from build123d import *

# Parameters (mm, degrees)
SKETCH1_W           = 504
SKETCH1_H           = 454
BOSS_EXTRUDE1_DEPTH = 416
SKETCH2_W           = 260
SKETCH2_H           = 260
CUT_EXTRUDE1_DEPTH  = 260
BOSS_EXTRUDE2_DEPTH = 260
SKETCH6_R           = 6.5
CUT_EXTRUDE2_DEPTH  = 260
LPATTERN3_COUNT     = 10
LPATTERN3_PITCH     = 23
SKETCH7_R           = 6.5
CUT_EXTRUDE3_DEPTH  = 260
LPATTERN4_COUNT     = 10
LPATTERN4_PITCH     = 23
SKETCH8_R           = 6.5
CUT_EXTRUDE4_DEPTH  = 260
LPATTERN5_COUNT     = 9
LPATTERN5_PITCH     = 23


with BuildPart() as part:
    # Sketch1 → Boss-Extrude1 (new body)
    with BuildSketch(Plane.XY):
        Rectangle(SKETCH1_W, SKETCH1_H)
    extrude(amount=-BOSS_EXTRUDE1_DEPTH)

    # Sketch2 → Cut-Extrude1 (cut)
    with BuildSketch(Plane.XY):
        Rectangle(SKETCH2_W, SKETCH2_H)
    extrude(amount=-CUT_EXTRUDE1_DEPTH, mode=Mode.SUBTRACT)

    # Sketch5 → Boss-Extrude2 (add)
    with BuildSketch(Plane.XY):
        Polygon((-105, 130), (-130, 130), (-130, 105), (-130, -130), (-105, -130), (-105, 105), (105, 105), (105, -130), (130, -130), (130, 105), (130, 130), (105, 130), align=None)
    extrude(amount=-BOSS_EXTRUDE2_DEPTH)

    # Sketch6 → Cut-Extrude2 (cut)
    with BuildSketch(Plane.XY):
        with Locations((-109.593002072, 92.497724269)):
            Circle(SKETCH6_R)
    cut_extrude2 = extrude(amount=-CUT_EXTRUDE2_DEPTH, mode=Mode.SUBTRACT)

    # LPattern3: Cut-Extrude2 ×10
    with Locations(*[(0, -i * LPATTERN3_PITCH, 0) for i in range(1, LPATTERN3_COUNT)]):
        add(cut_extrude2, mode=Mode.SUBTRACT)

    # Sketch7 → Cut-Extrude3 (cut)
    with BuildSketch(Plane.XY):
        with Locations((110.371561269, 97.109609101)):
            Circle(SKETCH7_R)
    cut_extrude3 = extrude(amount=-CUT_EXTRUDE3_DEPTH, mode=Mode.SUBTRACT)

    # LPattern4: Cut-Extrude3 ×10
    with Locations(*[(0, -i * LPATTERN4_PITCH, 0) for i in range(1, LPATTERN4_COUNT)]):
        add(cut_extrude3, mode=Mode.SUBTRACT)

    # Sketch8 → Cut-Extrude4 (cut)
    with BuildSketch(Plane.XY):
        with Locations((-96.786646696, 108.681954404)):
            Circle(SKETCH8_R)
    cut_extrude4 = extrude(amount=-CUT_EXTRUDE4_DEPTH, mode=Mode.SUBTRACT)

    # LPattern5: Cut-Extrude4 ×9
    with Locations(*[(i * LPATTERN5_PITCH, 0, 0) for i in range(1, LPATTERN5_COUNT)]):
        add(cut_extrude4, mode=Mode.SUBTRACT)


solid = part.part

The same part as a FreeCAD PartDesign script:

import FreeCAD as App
import Part
import Sketcher
from FreeCAD import Vector
Q = App.Units.Quantity


def add_polygon(sketch, points):
    """Adds a closed chain of lines whose ends are joined by coincident constraints."""
    first, n = sketch.GeometryCount, len(points)
    for a, b in zip(points, points[1:] + points[:1]):
        sketch.addGeometry(Part.LineSegment(App.Vector(*a, 0), App.Vector(*b, 0)), False)
    for i in range(n):
        sketch.addConstraint(Sketcher.Constraint("Coincident", first + i, 2, first + (i + 1) % n, 1))

doc = App.newDocument("Part")
body = doc.addObject("PartDesign::Body", "Body")

sketch1 = body.newObject("Sketcher::SketchObject", "Sketch")
sketch1.AttachmentSupport = (doc.getObject("XY_Plane"), [""])
sketch1.MapMode = "FlatFace"
add_polygon(sketch1, [(-252, 227), (-252, -227), (252, -227), (252, 227)])
sketch1.addConstraint([
    Sketcher.Constraint("Vertical", 0),
    Sketcher.Constraint("Horizontal", 1),
    Sketcher.Constraint("Vertical", 2),
    Sketcher.Constraint("Horizontal", 3),
    Sketcher.Constraint("Symmetric", 0, 2, 2, 2, -1, 1),
    Sketcher.Constraint("DistanceX", 1, 1, 1, 2, Q("504 mm")),
    Sketcher.Constraint("DistanceY", 0, 2, 0, 1, Q("454 mm")),
])
pad1 = body.newObject("PartDesign::Pad", "Pad")
pad1.Profile = sketch1
pad1.Length = 416
pad1.Reversed = True

sketch2 = body.newObject("Sketcher::SketchObject", "Sketch001")
sketch2.AttachmentSupport = (doc.getObject("XY_Plane"), [""])
sketch2.MapMode = "FlatFace"
add_polygon(sketch2, [(-130, 130), (-130, -130), (130, -130), (130, 130)])
sketch2.addConstraint([
    Sketcher.Constraint("Vertical", 0),
    Sketcher.Constraint("Horizontal", 1),
    Sketcher.Constraint("Vertical", 2),
    Sketcher.Constraint("Horizontal", 3),
    Sketcher.Constraint("Symmetric", 0, 2, 2, 2, -1, 1),
    Sketcher.Constraint("Equal", 3, 0),
    Sketcher.Constraint("DistanceX", 1, 1, 1, 2, Q("260 mm")),
])
pocket1 = body.newObject("PartDesign::Pocket", "Pocket")
pocket1.Profile = sketch2
pocket1.Length = 260

sketch3 = body.newObject("Sketcher::SketchObject", "Sketch002")
sketch3.AttachmentSupport = (doc.getObject("XY_Plane"), [""])
sketch3.MapMode = "FlatFace"
add_polygon(sketch3, [(-130, 130), (-130, -130), (-105, -130), (-105, 105), (105, 105), (105, -130), (130, -130), (130, 130)])
sketch3.addConstraint([
    Sketcher.Constraint("Vertical", 0),
    Sketcher.Constraint("Horizontal", 1),
    Sketcher.Constraint("Vertical", 2),
    Sketcher.Constraint("Horizontal", 3),
    Sketcher.Constraint("Vertical", 4),
    Sketcher.Constraint("Horizontal", 5),
    Sketcher.Constraint("Vertical", 6),
    Sketcher.Constraint("Horizontal", 7),
    Sketcher.Constraint("Symmetric", 0, 2, 6, 2, -1, 1),
    Sketcher.Constraint("Symmetric", 1, 2, 4, 2, -2),
    Sketcher.Constraint("Equal", 7, 0),
    Sketcher.Constraint("DistanceX", 1, 1, 1, 2, Q("25 mm")),
    Sketcher.Constraint("DistanceX", 3, 1, 3, 2, Q("210 mm")),
    Sketcher.Constraint("DistanceY", 2, 1, 2, 2, Q("235 mm")),
])
pad2 = body.newObject("PartDesign::Pad", "Pad001")
pad2.Profile = sketch3
pad2.Length = 260
pad2.Reversed = True

sketch4 = body.newObject("Sketcher::SketchObject", "Sketch003")
sketch4.AttachmentSupport = (doc.getObject("XY_Plane"), [""])
sketch4.MapMode = "FlatFace"
sketch4.addGeometry(Part.Circle(Vector(-110, 92, 0), Vector(0, 0, 1), 6), False)
sketch4.addConstraint([
    Sketcher.Constraint("Diameter", 0, Q("13 mm")),
    Sketcher.Constraint("DistanceX", 0, 3, -1, 1, Q("109.593002 mm")),
    Sketcher.Constraint("DistanceY", -1, 1, 0, 3, Q("92.497724 mm")),
])
pocket2 = body.newObject("PartDesign::Pocket", "Pocket001")
pocket2.Profile = sketch4
pocket2.Length = 260
doc.recompute()

linearpattern = body.newObject("PartDesign::LinearPattern", "LinearPattern")
linearpattern.Originals = [pocket2]
linearpattern.Direction = (doc.getObject("Y_Axis"), [""])
linearpattern.Mode = "offset"
linearpattern.Offset = 23
linearpattern.Occurrences = 10
linearpattern.Reversed = True
body.Tip = linearpattern

sketch5 = body.newObject("Sketcher::SketchObject", "Sketch004")
sketch5.AttachmentSupport = (doc.getObject("XY_Plane"), [""])
sketch5.MapMode = "FlatFace"
sketch5.addGeometry(Part.Circle(Vector(110, 97, 0), Vector(0, 0, 1), 6), False)
sketch5.addConstraint([
    Sketcher.Constraint("Diameter", 0, Q("13 mm")),
    Sketcher.Constraint("DistanceX", -1, 1, 0, 3, Q("110.371561 mm")),
    Sketcher.Constraint("DistanceY", -1, 1, 0, 3, Q("97.109609 mm")),
])
pocket3 = body.newObject("PartDesign::Pocket", "Pocket002")
pocket3.Profile = sketch5
pocket3.Length = 260
doc.recompute()

linearpattern2 = body.newObject("PartDesign::LinearPattern", "LinearPattern001")
linearpattern2.Originals = [pocket3]
linearpattern2.Direction = (doc.getObject("Y_Axis"), [""])
linearpattern2.Mode = "offset"
linearpattern2.Offset = 23
linearpattern2.Occurrences = 10
linearpattern2.Reversed = True
body.Tip = linearpattern2

sketch6 = body.newObject("Sketcher::SketchObject", "Sketch005")
sketch6.AttachmentSupport = (doc.getObject("XY_Plane"), [""])
sketch6.MapMode = "FlatFace"
sketch6.addGeometry(Part.Circle(Vector(-97, 109, 0), Vector(0, 0, 1), 6), False)
sketch6.addConstraint([
    Sketcher.Constraint("Diameter", 0, Q("13 mm")),
    Sketcher.Constraint("DistanceX", 0, 3, -1, 1, Q("96.786647 mm")),
    Sketcher.Constraint("DistanceY", -1, 1, 0, 3, Q("108.681954 mm")),
])
pocket4 = body.newObject("PartDesign::Pocket", "Pocket003")
pocket4.Profile = sketch6
pocket4.Length = 260
doc.recompute()

linearpattern3 = body.newObject("PartDesign::LinearPattern", "LinearPattern002")
linearpattern3.Originals = [pocket4]
linearpattern3.Direction = (doc.getObject("X_Axis"), [""])
linearpattern3.Mode = "offset"
linearpattern3.Offset = 23
linearpattern3.Occurrences = 9
body.Tip = linearpattern3

doc.recompute()
